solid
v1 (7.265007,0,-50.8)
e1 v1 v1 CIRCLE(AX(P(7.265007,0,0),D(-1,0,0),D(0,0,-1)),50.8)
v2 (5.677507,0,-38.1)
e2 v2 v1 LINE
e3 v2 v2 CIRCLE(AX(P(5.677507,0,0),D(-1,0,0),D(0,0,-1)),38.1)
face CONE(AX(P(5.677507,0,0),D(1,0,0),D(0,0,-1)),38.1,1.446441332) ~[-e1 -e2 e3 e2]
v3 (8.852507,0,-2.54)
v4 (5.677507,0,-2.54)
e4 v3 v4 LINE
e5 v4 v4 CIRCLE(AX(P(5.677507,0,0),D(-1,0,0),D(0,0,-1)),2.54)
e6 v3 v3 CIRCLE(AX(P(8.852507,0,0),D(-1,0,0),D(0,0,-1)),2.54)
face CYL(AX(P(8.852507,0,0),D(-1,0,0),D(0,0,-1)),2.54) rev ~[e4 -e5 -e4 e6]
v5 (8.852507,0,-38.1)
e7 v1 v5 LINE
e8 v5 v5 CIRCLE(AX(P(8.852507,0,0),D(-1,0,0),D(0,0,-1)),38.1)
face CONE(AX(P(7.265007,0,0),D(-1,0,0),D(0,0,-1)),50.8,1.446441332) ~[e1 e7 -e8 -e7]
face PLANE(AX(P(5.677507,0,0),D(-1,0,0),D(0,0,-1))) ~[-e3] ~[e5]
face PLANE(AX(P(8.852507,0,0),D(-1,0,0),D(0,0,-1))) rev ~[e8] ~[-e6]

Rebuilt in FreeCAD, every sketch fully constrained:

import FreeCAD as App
import Part
import Sketcher
Q = App.Units.Quantity

doc = App.newDocument("Part")
params = doc.addObject("Spreadsheet::Sheet", "Params")
for row, (alias, value) in enumerate([
    ("sketch1_height", "1.4 in"),
    ("sketch1_width", "0.125 in"),
    ("revolution_angle", "360 deg"),
], start=1):
    params.set(f"A{row}", alias)
    params.set(f"B{row}", "=" + value)
    params.setAlias(f"B{row}", alias)

body = doc.addObject("PartDesign::Body", "Body")

# Sketch on XZ plane
sketch1 = doc.addObject("Sketcher::SketchObject", "Sketch")
body.addObject(sketch1)
sketch1.AttachmentSupport = (doc.XZ_Plane, [""])
sketch1.MapMode = "FlatFace"
sketch1.addGeometry(Part.LineSegment(App.Vector(8.852507, -2.54, 0), App.Vector(5.677507, -2.54, 0)), False)
sketch1.addGeometry(Part.LineSegment(App.Vector(5.677507, -2.54, 0), App.Vector(5.677507, -38.1, 0)), False)
sketch1.addGeometry(Part.LineSegment(App.Vector(5.677507, -38.1, 0), App.Vector(7.265007, -50.8, 0)), False)
sketch1.addGeometry(Part.LineSegment(App.Vector(7.265007, -50.8, 0), App.Vector(8.852507, -38.1, 0)), False)
sketch1.addGeometry(Part.LineSegment(App.Vector(8.852507, -38.1, 0), App.Vector(8.852507, -2.54, 0)), False)
sketch1.addConstraint(Sketcher.Constraint("Coincident", 0, 2, 1, 1))
sketch1.addConstraint(Sketcher.Constraint("Coincident", 1, 2, 2, 1))
sketch1.addConstraint(Sketcher.Constraint("Coincident", 2, 2, 3, 1))
sketch1.addConstraint(Sketcher.Constraint("Coincident", 3, 2, 4, 1))
sketch1.addConstraint(Sketcher.Constraint("Coincident", 4, 2, 0, 1))
sketch1.addConstraint(Sketcher.Constraint("Horizontal", 0))
sketch1.addConstraint(Sketcher.Constraint("Vertical", 1))
sketch1.addConstraint(Sketcher.Constraint("Vertical", 4))
sketch1.addConstraint(Sketcher.Constraint("Horizontal", 1, 2, 3, 2))
sketch1.addConstraint(Sketcher.Constraint("Equal", 2, 3))
sketch1.addConstraint(Sketcher.Constraint("DistanceY", 1, 2, 1, 1, Q("1.4 in")))
sketch1.addConstraint(Sketcher.Constraint("DistanceY", 2, 2, -1, 1, Q("2 in")))
sketch1.addConstraint(Sketcher.Constraint("DistanceY", 0, 2, -1, 1, Q("0.1 in")))
sketch1.addConstraint(Sketcher.Constraint("DistanceX", 0, 2, 0, 1, Q("0.125 in")))
sketch1.addConstraint(Sketcher.Constraint("DistanceX", -1, 1, 0, 2, Q("5.677507 mm")))
sketch1.setExpression("Constraints[10]", "Params.sketch1_height")
sketch1.setExpression("Constraints[13]", "Params.sketch1_width")
revolution = doc.addObject("PartDesign::Revolution", "Revolution")
body.addObject(revolution)
revolution.Profile = sketch1
revolution.ReferenceAxis = (sketch1, ["H_Axis"])
revolution.setExpression("Angle", "Params.revolution_angle")

doc.recompute()
